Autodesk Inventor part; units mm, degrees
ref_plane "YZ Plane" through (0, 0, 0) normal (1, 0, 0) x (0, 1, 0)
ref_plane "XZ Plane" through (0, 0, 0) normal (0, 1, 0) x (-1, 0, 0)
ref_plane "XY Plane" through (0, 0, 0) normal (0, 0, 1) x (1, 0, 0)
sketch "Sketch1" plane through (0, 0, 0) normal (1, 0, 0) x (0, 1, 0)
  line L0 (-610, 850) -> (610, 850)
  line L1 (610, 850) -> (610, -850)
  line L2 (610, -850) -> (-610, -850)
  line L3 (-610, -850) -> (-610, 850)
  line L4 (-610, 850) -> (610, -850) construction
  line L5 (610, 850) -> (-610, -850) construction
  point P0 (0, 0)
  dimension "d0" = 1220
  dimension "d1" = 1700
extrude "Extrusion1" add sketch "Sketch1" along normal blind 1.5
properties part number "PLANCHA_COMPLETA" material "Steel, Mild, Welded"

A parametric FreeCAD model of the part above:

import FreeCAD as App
import Part
import Sketcher
Q = App.Units.Quantity

doc = App.newDocument("Part")
body = doc.addObject("PartDesign::Body", "Body")

sketch1 = body.newObject("Sketcher::SketchObject", "Sketch")
sketch1.AttachmentSupport = (doc.getObject("YZ_Plane"), [""])
sketch1.MapMode = "FlatFace"
sketch1.addGeometry(Part.LineSegment(App.Vector(610, 850, 0), App.Vector(-610, 850, 0)), False)
sketch1.addGeometry(Part.LineSegment(App.Vector(-610, 850, 0), App.Vector(-610, -850, 0)), False)
sketch1.addGeometry(Part.LineSegment(App.Vector(-610, -850, 0), App.Vector(610, -850, 0)), False)
sketch1.addGeometry(Part.LineSegment(App.Vector(610, -850, 0), App.Vector(610, 850, 0)), False)
sketch1.addConstraint(Sketcher.Constraint("Coincident", 0, 2, 1, 1))
sketch1.addConstraint(Sketcher.Constraint("Coincident", 1, 2, 2, 1))
sketch1.addConstraint(Sketcher.Constraint("Coincident", 2, 2, 3, 1))
sketch1.addConstraint(Sketcher.Constraint("Coincident", 3, 2, 0, 1))
sketch1.addConstraint(Sketcher.Constraint("Horizontal", 0))
sketch1.addConstraint(Sketcher.Constraint("Vertical", 1))
sketch1.addConstraint(Sketcher.Constraint("Horizontal", 2))
sketch1.addConstraint(Sketcher.Constraint("Vertical", 3))
sketch1.addConstraint(Sketcher.Constraint("Symmetric", 0, 2, 2, 2, -1, 1))
sketch1.addConstraint(Sketcher.Constraint("DistanceX", 0, 2, 0, 1, Q("1220 mm")))
sketch1.addConstraint(Sketcher.Constraint("DistanceY", 1, 2, 1, 1, Q("1700 mm")))
pad1 = body.newObject("PartDesign::Pad", "Pad")
pad1.Profile = sketch1
pad1.Length = 1.5

doc.recompute()
